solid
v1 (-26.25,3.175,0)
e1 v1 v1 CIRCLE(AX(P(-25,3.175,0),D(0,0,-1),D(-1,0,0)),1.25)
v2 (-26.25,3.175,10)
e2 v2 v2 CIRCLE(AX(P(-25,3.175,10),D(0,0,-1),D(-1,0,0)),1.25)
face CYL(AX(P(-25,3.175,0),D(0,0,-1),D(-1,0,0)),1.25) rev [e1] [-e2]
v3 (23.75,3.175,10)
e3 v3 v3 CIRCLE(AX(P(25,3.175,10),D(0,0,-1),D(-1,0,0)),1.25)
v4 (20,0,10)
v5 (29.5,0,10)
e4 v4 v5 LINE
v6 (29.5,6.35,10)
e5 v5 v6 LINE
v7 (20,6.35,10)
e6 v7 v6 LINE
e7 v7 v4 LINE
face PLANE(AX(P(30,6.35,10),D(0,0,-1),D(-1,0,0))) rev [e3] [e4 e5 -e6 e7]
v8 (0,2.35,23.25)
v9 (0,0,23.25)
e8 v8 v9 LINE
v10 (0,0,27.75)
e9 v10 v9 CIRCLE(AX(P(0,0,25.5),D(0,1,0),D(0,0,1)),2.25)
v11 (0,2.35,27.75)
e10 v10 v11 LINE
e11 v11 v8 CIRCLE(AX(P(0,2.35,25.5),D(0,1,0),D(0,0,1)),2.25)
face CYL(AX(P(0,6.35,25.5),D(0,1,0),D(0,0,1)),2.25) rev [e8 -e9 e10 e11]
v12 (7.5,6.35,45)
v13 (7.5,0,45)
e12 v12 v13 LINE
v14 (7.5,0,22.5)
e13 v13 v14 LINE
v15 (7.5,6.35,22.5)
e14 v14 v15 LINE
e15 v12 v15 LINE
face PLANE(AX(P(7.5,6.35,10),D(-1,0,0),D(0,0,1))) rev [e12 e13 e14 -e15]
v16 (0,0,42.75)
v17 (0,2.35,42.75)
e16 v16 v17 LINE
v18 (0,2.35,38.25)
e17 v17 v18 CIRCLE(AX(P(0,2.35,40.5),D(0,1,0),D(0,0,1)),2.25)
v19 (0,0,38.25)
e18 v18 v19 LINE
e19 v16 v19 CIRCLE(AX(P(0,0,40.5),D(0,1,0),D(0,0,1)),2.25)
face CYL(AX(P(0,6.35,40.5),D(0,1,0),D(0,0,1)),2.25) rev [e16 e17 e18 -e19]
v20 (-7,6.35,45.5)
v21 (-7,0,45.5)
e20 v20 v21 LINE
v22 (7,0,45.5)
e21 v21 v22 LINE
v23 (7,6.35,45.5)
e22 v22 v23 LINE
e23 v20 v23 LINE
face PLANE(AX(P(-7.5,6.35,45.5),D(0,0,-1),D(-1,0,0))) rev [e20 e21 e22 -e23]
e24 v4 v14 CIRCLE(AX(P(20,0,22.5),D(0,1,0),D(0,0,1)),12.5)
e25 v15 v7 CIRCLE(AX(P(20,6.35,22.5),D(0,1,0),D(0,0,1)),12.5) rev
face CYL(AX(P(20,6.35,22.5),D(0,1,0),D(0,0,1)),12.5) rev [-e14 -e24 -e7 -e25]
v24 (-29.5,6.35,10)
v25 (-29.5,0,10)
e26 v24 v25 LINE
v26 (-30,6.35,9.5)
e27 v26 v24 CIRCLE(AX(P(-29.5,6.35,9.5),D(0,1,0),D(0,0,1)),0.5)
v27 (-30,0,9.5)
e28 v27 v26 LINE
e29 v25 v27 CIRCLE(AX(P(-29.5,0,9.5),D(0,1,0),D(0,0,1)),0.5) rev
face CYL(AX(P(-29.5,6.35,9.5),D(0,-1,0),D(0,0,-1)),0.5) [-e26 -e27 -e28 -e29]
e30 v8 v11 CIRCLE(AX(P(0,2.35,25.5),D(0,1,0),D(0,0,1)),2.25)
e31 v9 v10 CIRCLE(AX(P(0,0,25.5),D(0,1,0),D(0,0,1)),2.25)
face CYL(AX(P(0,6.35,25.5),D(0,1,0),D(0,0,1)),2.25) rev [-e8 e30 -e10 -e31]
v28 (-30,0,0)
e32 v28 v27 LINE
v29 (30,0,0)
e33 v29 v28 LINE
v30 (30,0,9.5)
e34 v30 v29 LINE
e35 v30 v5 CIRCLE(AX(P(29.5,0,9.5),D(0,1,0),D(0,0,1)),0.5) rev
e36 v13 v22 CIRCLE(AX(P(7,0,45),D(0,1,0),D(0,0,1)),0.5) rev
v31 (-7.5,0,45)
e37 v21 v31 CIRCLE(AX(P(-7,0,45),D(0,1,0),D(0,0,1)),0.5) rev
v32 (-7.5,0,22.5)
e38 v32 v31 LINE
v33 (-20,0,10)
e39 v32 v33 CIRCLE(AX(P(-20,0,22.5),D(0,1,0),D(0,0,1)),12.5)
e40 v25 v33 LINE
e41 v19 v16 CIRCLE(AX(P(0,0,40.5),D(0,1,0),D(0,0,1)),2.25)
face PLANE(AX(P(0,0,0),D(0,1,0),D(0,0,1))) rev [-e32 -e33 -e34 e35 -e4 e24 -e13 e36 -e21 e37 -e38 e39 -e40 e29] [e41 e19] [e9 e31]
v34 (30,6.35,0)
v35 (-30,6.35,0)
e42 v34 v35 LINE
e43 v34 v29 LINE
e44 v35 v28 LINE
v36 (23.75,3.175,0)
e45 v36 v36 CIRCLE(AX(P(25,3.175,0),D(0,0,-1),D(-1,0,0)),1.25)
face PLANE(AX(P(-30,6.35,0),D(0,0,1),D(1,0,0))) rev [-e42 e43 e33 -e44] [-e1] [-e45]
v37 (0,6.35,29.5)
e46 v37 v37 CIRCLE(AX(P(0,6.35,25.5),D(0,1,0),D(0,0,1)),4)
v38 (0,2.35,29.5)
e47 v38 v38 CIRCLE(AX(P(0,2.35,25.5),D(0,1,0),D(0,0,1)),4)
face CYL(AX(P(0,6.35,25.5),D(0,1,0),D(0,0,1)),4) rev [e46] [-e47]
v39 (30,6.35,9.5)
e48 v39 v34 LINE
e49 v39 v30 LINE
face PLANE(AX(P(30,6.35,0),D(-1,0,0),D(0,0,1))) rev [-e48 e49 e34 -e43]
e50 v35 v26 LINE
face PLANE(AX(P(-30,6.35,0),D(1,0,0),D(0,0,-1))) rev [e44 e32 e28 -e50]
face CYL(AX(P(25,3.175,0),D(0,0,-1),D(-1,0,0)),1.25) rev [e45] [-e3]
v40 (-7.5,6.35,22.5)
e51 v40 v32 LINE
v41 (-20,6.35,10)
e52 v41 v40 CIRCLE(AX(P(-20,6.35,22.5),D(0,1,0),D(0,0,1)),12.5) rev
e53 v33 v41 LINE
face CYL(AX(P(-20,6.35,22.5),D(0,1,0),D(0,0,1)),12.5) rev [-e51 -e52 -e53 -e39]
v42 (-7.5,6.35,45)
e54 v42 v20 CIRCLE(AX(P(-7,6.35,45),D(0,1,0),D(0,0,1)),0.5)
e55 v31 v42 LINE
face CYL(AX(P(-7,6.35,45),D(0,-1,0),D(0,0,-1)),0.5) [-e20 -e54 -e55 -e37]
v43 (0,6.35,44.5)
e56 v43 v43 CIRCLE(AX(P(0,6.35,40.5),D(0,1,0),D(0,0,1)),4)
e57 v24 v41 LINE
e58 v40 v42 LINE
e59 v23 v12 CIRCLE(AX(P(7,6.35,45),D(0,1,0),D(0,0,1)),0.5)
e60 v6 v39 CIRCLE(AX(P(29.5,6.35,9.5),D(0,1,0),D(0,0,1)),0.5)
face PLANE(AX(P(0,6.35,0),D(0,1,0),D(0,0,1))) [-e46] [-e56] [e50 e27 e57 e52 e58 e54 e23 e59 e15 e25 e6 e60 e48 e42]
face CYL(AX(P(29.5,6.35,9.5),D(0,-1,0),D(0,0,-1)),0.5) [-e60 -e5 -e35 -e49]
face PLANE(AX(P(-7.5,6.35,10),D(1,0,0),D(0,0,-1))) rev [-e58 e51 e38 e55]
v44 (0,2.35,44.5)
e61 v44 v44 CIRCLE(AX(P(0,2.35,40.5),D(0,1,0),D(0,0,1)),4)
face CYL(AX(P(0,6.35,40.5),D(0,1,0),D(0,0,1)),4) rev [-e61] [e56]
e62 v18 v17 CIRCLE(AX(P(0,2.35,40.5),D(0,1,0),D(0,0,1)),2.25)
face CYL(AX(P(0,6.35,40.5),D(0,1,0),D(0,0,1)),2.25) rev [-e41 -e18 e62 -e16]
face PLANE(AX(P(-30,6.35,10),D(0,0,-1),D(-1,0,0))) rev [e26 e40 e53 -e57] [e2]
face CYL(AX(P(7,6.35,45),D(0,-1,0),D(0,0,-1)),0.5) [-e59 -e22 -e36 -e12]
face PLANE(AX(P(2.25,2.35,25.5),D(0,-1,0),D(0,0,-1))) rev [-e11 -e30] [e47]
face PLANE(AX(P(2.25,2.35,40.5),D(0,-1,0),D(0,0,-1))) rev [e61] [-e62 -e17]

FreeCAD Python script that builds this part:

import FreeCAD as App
import Part
import Sketcher

V = App.Vector


def edges_at(feature, points):
    """Names of the edges that pass closest to the given points."""
    edges = feature.Shape.Edges
    near = lambda p: min(range(len(edges)), key=lambda i: edges[i].distToShape(Part.Vertex(*p))[0])
    return sorted({f"Edge{near(p) + 1}" for p in points})

doc = App.newDocument("Part")
body = doc.addObject("PartDesign::Body", "Body")

sketch1 = body.newObject("Sketcher::SketchObject", "Sketch")
sketch1.AttachmentSupport = (doc.getObject("XZ_Plane"), [""])
sketch1.MapMode = "FlatFace"
sketch1.addGeometry(Part.LineSegment(V(30, 0, 0), V(-30, 0, 0)), False)
sketch1.addGeometry(Part.LineSegment(V(-30, 0, 0), V(-30, 10, 0)), False)
sketch1.addGeometry(Part.LineSegment(V(-30, 10, 0), V(-8, 10, 0)), False)
sketch1.addGeometry(Part.LineSegment(V(-8, 10, 0), V(-8, 46, 0)), False)
sketch1.addGeometry(Part.LineSegment(V(-8, 46, 0), V(8, 46, 0)), False)
sketch1.addGeometry(Part.LineSegment(V(8, 46, 0), V(8, 10, 0)), False)
sketch1.addGeometry(Part.LineSegment(V(8, 10, 0), V(30, 10, 0)), False)
sketch1.addGeometry(Part.LineSegment(V(30, 10, 0), V(30, 0, 0)), False)
sketch1.addConstraint(Sketcher.Constraint("Coincident", 0, 2, 1, 1))
sketch1.addConstraint(Sketcher.Constraint("Coincident", 1, 2, 2, 1))
sketch1.addConstraint(Sketcher.Constraint("Coincident", 2, 2, 3, 1))
sketch1.addConstraint(Sketcher.Constraint("Coincident", 3, 2, 4, 1))
sketch1.addConstraint(Sketcher.Constraint("Coincident", 4, 2, 5, 1))
sketch1.addConstraint(Sketcher.Constraint("Coincident", 5, 2, 6, 1))
sketch1.addConstraint(Sketcher.Constraint("Coincident", 6, 2, 7, 1))
sketch1.addConstraint(Sketcher.Constraint("Coincident", 7, 2, 0, 1))
sketch1.addConstraint(Sketcher.Constraint("Horizontal", 0))
sketch1.addConstraint(Sketcher.Constraint("Vertical", 1))
sketch1.addConstraint(Sketcher.Constraint("Horizontal", 2))
sketch1.addConstraint(Sketcher.Constraint("Vertical", 3))
sketch1.addConstraint(Sketcher.Constraint("Horizontal", 4))
sketch1.addConstraint(Sketcher.Constraint("Vertical", 5))
sketch1.addConstraint(Sketcher.Constraint("Horizontal", 6))
sketch1.addConstraint(Sketcher.Constraint("Vertical", 7))
sketch1.addConstraint(Sketcher.Constraint("Symmetric", 0, 2, 7, 2, -1, 1))
sketch1.addConstraint(Sketcher.Constraint("Symmetric", 2, 2, 5, 2, -2))
sketch1.addConstraint(Sketcher.Constraint("DistanceX", 0, 2, 0, 1, 60.0))
sketch1.addConstraint(Sketcher.Constraint("DistanceX", 4, 1, 4, 2, 15.0))
sketch1.addConstraint(Sketcher.Constraint("DistanceY", 1, 1, 1, 2, 10.0))
sketch1.addConstraint(Sketcher.Constraint("DistanceY", 3, 1, 3, 2, 35.5))
pad1 = body.newObject("PartDesign::Pad", "Pad")
pad1.Profile = sketch1
pad1.Length = 6.35
pad1.Reversed = True
doc.recompute()

fillet = body.newObject("PartDesign::Fillet", "Fillet")
fillet.Base = (pad1, edges_at(pad1, [(-7.5, 3.175, 10), (7.5, 3.175, 10)]))
fillet.Radius = 12.5

sketch2 = body.newObject("Sketcher::SketchObject", "Sketch001")
sketch2.AttachmentSupport = (doc.getObject("XZ_Plane"), [""])
sketch2.MapMode = "FlatFace"
sketch2.AttachmentOffset = App.Placement(V(0, 0, -6.35), App.Rotation())
sketch2.addGeometry(Part.Circle(V(0, 40.5, 0), V(0, 0, 1), 2.2), False)
sketch2.addGeometry(Part.Circle(V(0, 25.5, 0), V(0, 0, 1), 2.2), False)
sketch2.addConstraint(Sketcher.Constraint("Equal", 0, 1))
sketch2.addConstraint(Sketcher.Constraint("PointOnObject", 0, 3, -2))
sketch2.addConstraint(Sketcher.Constraint("PointOnObject", 1, 3, -2))
sketch2.addConstraint(Sketcher.Constraint("Diameter", 0, 4.5))
sketch2.addConstraint(Sketcher.Constraint("DistanceY", 1, 3, 0, 3, 15.0))
sketch2.addConstraint(Sketcher.Constraint("DistanceY", -1, 1, 0, 3, 40.5))
doc.recompute()
hole = body.newObject("PartDesign::Hole", "Hole")
hole.Profile = sketch2
hole.ThreadType = "None"
hole.Diameter = 4.5
hole.DepthType = "ThroughAll"
hole.HoleCutType = "Counterbore"
hole.HoleCutDiameter = 8
hole.HoleCutDepth = 4
hole.Reversed = True

sketch3 = body.newObject("Sketcher::SketchObject", "Sketch002")
sketch3.AttachmentSupport = (doc.getObject("XY_Plane"), [""])
sketch3.MapMode = "FlatFace"
sketch3.addGeometry(Part.Circle(V(25, 3.2, 0), V(0, 0, 1), 1.2), False)
sketch3.addGeometry(Part.Circle(V(-25, 3.2, 0), V(0, 0, 1), 1.2), False)
sketch3.addConstraint(Sketcher.Constraint("Equal", 0, 1))
sketch3.addConstraint(Sketcher.Constraint("Symmetric", 0, 3, 1, 3, -2))
sketch3.addConstraint(Sketcher.Constraint("Diameter", 0, 2.5))
sketch3.addConstraint(Sketcher.Constraint("DistanceX", -1, 1, 0, 3, 25.0))
sketch3.addConstraint(Sketcher.Constraint("DistanceY", -1, 1, 0, 3, 3.175))
doc.recompute()
hole2 = body.newObject("PartDesign::Hole", "Hole001")
hole2.Profile = sketch3
hole2.ThreadType = "None"
hole2.Diameter = 2.5
hole2.DepthType = "Dimension"
hole2.Depth = 10
hole2.DrillPoint = "Flat"
hole2.Reversed = True
doc.recompute()

fillet2 = body.newObject("PartDesign::Fillet", "Fillet001")
fillet2.Base = (hole2, edges_at(hole2, [(-30, 3.175, 10), (30, 3.175, 10)]))
fillet2.Radius = 0.5
doc.recompute()

fillet3 = body.newObject("PartDesign::Fillet", "Fillet002")
fillet3.Base = (fillet2, edges_at(fillet2, [(7.5, 3.175, 45.5), (-7.5, 3.175, 45.5)]))
fillet3.Radius = 0.5

doc.recompute()
